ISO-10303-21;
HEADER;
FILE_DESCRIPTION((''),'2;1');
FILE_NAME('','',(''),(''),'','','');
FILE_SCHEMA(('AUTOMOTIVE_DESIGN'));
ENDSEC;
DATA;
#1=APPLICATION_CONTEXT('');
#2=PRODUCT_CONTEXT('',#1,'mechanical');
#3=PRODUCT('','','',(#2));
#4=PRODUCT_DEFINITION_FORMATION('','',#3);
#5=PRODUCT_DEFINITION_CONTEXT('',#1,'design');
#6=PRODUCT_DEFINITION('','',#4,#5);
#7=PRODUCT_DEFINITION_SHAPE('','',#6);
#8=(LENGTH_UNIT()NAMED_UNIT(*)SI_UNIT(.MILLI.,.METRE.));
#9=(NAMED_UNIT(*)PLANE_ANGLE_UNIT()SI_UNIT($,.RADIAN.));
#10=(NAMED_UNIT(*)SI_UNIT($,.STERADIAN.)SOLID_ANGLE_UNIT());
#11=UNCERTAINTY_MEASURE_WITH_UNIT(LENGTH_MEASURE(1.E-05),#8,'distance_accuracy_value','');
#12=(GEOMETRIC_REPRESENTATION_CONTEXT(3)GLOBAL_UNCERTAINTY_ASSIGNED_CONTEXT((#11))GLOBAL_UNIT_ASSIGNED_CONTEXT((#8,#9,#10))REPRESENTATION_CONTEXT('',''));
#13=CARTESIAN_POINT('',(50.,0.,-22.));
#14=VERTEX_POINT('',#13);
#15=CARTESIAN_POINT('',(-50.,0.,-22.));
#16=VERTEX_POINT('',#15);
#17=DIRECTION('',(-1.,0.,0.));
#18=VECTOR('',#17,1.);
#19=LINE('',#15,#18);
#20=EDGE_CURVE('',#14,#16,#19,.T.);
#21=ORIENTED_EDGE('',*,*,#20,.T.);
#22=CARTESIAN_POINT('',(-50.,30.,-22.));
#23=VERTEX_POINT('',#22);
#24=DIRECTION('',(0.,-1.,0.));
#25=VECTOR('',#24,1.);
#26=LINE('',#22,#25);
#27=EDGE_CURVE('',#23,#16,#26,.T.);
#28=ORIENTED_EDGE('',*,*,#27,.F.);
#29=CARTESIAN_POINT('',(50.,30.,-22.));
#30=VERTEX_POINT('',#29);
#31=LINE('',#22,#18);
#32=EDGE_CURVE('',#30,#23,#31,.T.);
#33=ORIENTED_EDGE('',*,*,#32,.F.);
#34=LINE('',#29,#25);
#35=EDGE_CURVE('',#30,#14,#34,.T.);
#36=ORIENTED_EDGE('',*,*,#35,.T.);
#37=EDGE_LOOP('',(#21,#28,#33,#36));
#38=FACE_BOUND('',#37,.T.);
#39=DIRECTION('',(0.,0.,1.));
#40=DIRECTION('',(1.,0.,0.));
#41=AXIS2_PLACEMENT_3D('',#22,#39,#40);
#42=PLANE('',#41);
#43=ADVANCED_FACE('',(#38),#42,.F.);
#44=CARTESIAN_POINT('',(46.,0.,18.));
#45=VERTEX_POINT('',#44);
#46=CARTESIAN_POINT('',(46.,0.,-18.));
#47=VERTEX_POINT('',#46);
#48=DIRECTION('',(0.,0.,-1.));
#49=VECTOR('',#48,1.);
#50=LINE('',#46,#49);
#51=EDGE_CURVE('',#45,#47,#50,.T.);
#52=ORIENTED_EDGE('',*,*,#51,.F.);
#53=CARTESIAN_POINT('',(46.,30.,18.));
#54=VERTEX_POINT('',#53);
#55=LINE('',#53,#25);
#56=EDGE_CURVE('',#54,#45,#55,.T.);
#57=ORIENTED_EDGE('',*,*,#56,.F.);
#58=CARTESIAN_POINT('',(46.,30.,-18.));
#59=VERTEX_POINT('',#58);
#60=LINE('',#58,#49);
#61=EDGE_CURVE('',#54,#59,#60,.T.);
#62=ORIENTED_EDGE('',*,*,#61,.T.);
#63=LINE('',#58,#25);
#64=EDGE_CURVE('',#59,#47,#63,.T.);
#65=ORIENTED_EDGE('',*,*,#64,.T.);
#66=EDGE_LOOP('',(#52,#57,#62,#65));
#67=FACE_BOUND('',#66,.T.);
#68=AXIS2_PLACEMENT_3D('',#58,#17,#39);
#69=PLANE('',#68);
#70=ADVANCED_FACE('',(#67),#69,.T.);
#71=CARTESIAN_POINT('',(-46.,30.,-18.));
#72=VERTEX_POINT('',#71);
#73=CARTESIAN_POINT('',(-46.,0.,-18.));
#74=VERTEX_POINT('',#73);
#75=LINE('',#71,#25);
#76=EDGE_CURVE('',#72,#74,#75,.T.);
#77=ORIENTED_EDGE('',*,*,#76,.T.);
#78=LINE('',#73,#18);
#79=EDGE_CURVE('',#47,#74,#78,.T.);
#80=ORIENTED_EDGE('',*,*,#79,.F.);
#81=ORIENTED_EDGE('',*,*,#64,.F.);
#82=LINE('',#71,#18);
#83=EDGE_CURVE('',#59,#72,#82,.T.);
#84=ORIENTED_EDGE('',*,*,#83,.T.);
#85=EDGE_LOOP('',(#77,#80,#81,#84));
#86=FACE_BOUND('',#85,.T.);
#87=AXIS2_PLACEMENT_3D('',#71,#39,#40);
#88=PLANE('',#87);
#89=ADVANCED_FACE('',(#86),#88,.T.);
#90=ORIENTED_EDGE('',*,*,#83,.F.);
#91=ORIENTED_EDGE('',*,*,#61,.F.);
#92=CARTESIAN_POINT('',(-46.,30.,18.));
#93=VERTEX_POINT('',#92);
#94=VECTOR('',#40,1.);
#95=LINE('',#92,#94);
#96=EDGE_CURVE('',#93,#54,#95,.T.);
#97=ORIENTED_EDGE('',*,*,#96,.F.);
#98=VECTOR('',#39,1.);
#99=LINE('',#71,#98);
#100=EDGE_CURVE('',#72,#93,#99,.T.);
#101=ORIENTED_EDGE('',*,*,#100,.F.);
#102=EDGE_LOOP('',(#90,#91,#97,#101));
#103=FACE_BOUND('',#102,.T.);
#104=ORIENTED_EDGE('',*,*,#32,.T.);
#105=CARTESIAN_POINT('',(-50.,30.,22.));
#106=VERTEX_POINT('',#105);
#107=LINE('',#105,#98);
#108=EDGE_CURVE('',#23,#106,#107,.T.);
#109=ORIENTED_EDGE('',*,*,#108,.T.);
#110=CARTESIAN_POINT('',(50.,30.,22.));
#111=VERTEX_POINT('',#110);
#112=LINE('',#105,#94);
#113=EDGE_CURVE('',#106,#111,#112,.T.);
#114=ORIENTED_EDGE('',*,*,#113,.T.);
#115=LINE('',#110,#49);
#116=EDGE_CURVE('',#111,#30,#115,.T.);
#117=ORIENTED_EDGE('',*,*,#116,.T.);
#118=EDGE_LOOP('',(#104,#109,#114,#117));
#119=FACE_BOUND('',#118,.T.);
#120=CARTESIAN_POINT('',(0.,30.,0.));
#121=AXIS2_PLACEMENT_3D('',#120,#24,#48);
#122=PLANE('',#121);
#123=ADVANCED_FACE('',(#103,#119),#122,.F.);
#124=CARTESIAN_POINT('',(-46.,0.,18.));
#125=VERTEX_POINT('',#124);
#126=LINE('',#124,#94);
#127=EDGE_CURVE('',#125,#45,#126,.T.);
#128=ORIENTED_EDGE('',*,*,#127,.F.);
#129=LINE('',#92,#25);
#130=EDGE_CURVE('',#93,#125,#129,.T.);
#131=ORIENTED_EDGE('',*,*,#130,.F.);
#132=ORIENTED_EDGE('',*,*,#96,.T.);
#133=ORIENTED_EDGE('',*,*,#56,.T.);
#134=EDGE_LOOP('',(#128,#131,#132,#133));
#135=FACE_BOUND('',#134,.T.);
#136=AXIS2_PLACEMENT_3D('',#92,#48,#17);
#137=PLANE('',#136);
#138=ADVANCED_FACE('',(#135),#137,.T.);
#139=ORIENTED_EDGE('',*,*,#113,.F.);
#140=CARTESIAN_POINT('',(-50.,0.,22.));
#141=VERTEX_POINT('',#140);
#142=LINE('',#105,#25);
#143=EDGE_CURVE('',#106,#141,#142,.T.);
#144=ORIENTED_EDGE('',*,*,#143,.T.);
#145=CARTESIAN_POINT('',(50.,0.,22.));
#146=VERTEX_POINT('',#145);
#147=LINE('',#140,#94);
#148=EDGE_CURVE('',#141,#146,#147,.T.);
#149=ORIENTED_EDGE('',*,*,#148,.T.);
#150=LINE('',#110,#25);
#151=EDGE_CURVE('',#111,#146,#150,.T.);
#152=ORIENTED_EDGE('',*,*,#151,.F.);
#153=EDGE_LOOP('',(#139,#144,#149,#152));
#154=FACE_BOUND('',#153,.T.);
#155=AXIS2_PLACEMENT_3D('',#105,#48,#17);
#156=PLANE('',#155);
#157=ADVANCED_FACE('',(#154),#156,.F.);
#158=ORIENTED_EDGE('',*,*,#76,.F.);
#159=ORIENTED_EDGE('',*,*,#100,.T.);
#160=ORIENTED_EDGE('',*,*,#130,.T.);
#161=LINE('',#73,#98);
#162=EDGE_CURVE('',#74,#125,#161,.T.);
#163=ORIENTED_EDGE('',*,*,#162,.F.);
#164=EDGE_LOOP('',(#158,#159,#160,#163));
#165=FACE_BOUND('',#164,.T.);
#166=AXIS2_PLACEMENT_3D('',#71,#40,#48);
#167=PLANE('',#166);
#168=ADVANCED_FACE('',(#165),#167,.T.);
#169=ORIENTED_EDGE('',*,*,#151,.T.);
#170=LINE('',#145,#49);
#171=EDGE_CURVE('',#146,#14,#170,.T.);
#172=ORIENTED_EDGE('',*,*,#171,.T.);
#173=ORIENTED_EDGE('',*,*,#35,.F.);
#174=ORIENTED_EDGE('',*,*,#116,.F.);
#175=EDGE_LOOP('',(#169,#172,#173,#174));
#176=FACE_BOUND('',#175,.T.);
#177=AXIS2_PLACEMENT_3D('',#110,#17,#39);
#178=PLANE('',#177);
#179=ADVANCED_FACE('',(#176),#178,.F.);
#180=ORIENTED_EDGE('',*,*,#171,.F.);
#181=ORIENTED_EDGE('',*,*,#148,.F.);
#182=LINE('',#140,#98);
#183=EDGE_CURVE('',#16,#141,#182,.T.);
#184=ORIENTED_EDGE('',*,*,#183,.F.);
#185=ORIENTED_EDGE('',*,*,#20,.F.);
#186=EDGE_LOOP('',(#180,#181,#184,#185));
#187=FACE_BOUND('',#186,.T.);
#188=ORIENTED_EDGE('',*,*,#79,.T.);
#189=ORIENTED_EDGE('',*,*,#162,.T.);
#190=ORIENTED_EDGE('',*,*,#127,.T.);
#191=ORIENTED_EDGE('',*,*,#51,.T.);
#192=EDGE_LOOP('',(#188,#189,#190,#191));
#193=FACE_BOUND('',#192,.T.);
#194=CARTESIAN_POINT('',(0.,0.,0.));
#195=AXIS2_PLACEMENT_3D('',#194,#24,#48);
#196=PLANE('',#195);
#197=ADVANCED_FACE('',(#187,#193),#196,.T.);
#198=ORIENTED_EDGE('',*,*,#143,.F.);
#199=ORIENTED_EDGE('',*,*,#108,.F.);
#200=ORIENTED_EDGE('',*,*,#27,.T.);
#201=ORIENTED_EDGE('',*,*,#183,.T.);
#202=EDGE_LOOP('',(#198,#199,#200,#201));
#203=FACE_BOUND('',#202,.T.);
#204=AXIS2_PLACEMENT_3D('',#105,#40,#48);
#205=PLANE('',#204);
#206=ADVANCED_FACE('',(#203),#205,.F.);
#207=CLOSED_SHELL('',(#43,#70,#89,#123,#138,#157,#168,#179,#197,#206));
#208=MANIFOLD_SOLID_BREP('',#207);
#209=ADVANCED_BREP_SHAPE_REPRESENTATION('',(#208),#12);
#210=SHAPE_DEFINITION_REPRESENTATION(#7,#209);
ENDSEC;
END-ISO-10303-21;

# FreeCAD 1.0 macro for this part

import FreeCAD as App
import Part
import Sketcher
Q = App.Units.Quantity


def add_polygon(sketch, points):
    """Adds a closed chain of lines whose ends are joined by coincident constraints."""
    first, n = sketch.GeometryCount, len(points)
    for a, b in zip(points, points[1:] + points[:1]):
        sketch.addGeometry(Part.LineSegment(App.Vector(*a, 0), App.Vector(*b, 0)), False)
    for i in range(n):
        sketch.addConstraint(Sketcher.Constraint("Coincident", first + i, 2, first + (i + 1) % n, 1))

doc = App.newDocument("Part")
body = doc.addObject("PartDesign::Body", "Body")

sketch1 = body.newObject("Sketcher::SketchObject", "Sketch")
sketch1.AttachmentSupport = (doc.getObject("XZ_Plane"), [""])
sketch1.MapMode = "FlatFace"
add_polygon(sketch1, [(-50, -22), (-50, 22), (50, 22), (50, -22)])
add_polygon(sketch1, [(46, 18), (-46, 18), (-46, -18), (46, -18)])
sketch1.addConstraint(Sketcher.Constraint("Vertical", 0))
sketch1.addConstraint(Sketcher.Constraint("Horizontal", 1))
sketch1.addConstraint(Sketcher.Constraint("Vertical", 2))
sketch1.addConstraint(Sketcher.Constraint("Horizontal", 3))
sketch1.addConstraint(Sketcher.Constraint("Horizontal", 4))
sketch1.addConstraint(Sketcher.Constraint("Vertical", 5))
sketch1.addConstraint(Sketcher.Constraint("Horizontal", 6))
sketch1.addConstraint(Sketcher.Constraint("Vertical", 7))
sketch1.addConstraint(Sketcher.Constraint("Symmetric", 0, 2, 2, 2, -1, 1))
sketch1.addConstraint(Sketcher.Constraint("Symmetric", 4, 2, 6, 2, -1, 1))
sketch1.addConstraint(Sketcher.Constraint("DistanceX", 1, 1, 1, 2, Q("100 mm")))
sketch1.addConstraint(Sketcher.Constraint("DistanceX", 4, 2, 4, 1, Q("92 mm")))
sketch1.addConstraint(Sketcher.Constraint("DistanceY", 0, 1, 0, 2, Q("44 mm")))
sketch1.addConstraint(Sketcher.Constraint("DistanceY", 5, 2, 5, 1, Q("36 mm")))
pad1 = body.newObject("PartDesign::Pad", "Pad")
pad1.Profile = sketch1
pad1.Length = 30
pad1.Reversed = True

doc.recompute()
